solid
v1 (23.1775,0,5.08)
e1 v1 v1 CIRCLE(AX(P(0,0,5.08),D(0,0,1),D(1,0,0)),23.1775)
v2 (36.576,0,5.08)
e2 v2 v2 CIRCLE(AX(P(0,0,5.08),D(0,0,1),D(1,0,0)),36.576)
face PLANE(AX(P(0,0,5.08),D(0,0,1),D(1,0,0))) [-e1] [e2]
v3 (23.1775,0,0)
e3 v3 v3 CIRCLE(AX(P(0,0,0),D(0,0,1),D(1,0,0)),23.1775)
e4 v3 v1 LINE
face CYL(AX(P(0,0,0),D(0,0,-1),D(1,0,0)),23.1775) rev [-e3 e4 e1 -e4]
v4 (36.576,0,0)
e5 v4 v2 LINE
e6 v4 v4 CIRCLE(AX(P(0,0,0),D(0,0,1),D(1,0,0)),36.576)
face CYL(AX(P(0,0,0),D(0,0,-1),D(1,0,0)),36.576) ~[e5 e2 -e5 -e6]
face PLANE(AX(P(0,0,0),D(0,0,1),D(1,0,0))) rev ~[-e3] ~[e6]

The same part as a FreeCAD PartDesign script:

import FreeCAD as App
import Part
import Sketcher

V = App.Vector
Q = App.Units.Quantity

doc = App.newDocument("Part")
params = doc.addObject("Spreadsheet::Sheet", "Params")
for row, (alias, value) in enumerate([
    ("sketch1_diameter", "2.88 in"),
    ("sketch1_diameter2", "1.825 in"),
    ("pad1_length", "0.2 in"),
], start=1):
    params.set(f"A{row}", alias)
    params.set(f"B{row}", "=" + value)
    params.setAlias(f"B{row}", alias)

body = doc.addObject("PartDesign::Body", "Body")

sketch1 = body.newObject("Sketcher::SketchObject", "Sketch")
sketch1.AttachmentSupport = (doc.getObject("XY_Plane"), [""])
sketch1.MapMode = "FlatFace"
sketch1.addGeometry([
    Part.Circle(V(0, 0, 0), V(0, 0, 1), 37),
    Part.Circle(V(0, 0, 0), V(0, 0, 1), 23),
], False)
sketch1.addConstraint([
    Sketcher.Constraint("Coincident", 0, 3, -1, 1),
    Sketcher.Constraint("Coincident", 1, 3, -1, 1),
    Sketcher.Constraint("Diameter", 0, Q("2.88 in")),
    Sketcher.Constraint("Diameter", 1, Q("1.825 in")),
])
sketch1.setExpression("Constraints[2]", "Params.sketch1_diameter")
sketch1.setExpression("Constraints[3]", "Params.sketch1_diameter2")
pad1 = body.newObject("PartDesign::Pad", "Pad")
pad1.Profile = sketch1
pad1.setExpression("Length", "Params.pad1_length")

doc.recompute()
